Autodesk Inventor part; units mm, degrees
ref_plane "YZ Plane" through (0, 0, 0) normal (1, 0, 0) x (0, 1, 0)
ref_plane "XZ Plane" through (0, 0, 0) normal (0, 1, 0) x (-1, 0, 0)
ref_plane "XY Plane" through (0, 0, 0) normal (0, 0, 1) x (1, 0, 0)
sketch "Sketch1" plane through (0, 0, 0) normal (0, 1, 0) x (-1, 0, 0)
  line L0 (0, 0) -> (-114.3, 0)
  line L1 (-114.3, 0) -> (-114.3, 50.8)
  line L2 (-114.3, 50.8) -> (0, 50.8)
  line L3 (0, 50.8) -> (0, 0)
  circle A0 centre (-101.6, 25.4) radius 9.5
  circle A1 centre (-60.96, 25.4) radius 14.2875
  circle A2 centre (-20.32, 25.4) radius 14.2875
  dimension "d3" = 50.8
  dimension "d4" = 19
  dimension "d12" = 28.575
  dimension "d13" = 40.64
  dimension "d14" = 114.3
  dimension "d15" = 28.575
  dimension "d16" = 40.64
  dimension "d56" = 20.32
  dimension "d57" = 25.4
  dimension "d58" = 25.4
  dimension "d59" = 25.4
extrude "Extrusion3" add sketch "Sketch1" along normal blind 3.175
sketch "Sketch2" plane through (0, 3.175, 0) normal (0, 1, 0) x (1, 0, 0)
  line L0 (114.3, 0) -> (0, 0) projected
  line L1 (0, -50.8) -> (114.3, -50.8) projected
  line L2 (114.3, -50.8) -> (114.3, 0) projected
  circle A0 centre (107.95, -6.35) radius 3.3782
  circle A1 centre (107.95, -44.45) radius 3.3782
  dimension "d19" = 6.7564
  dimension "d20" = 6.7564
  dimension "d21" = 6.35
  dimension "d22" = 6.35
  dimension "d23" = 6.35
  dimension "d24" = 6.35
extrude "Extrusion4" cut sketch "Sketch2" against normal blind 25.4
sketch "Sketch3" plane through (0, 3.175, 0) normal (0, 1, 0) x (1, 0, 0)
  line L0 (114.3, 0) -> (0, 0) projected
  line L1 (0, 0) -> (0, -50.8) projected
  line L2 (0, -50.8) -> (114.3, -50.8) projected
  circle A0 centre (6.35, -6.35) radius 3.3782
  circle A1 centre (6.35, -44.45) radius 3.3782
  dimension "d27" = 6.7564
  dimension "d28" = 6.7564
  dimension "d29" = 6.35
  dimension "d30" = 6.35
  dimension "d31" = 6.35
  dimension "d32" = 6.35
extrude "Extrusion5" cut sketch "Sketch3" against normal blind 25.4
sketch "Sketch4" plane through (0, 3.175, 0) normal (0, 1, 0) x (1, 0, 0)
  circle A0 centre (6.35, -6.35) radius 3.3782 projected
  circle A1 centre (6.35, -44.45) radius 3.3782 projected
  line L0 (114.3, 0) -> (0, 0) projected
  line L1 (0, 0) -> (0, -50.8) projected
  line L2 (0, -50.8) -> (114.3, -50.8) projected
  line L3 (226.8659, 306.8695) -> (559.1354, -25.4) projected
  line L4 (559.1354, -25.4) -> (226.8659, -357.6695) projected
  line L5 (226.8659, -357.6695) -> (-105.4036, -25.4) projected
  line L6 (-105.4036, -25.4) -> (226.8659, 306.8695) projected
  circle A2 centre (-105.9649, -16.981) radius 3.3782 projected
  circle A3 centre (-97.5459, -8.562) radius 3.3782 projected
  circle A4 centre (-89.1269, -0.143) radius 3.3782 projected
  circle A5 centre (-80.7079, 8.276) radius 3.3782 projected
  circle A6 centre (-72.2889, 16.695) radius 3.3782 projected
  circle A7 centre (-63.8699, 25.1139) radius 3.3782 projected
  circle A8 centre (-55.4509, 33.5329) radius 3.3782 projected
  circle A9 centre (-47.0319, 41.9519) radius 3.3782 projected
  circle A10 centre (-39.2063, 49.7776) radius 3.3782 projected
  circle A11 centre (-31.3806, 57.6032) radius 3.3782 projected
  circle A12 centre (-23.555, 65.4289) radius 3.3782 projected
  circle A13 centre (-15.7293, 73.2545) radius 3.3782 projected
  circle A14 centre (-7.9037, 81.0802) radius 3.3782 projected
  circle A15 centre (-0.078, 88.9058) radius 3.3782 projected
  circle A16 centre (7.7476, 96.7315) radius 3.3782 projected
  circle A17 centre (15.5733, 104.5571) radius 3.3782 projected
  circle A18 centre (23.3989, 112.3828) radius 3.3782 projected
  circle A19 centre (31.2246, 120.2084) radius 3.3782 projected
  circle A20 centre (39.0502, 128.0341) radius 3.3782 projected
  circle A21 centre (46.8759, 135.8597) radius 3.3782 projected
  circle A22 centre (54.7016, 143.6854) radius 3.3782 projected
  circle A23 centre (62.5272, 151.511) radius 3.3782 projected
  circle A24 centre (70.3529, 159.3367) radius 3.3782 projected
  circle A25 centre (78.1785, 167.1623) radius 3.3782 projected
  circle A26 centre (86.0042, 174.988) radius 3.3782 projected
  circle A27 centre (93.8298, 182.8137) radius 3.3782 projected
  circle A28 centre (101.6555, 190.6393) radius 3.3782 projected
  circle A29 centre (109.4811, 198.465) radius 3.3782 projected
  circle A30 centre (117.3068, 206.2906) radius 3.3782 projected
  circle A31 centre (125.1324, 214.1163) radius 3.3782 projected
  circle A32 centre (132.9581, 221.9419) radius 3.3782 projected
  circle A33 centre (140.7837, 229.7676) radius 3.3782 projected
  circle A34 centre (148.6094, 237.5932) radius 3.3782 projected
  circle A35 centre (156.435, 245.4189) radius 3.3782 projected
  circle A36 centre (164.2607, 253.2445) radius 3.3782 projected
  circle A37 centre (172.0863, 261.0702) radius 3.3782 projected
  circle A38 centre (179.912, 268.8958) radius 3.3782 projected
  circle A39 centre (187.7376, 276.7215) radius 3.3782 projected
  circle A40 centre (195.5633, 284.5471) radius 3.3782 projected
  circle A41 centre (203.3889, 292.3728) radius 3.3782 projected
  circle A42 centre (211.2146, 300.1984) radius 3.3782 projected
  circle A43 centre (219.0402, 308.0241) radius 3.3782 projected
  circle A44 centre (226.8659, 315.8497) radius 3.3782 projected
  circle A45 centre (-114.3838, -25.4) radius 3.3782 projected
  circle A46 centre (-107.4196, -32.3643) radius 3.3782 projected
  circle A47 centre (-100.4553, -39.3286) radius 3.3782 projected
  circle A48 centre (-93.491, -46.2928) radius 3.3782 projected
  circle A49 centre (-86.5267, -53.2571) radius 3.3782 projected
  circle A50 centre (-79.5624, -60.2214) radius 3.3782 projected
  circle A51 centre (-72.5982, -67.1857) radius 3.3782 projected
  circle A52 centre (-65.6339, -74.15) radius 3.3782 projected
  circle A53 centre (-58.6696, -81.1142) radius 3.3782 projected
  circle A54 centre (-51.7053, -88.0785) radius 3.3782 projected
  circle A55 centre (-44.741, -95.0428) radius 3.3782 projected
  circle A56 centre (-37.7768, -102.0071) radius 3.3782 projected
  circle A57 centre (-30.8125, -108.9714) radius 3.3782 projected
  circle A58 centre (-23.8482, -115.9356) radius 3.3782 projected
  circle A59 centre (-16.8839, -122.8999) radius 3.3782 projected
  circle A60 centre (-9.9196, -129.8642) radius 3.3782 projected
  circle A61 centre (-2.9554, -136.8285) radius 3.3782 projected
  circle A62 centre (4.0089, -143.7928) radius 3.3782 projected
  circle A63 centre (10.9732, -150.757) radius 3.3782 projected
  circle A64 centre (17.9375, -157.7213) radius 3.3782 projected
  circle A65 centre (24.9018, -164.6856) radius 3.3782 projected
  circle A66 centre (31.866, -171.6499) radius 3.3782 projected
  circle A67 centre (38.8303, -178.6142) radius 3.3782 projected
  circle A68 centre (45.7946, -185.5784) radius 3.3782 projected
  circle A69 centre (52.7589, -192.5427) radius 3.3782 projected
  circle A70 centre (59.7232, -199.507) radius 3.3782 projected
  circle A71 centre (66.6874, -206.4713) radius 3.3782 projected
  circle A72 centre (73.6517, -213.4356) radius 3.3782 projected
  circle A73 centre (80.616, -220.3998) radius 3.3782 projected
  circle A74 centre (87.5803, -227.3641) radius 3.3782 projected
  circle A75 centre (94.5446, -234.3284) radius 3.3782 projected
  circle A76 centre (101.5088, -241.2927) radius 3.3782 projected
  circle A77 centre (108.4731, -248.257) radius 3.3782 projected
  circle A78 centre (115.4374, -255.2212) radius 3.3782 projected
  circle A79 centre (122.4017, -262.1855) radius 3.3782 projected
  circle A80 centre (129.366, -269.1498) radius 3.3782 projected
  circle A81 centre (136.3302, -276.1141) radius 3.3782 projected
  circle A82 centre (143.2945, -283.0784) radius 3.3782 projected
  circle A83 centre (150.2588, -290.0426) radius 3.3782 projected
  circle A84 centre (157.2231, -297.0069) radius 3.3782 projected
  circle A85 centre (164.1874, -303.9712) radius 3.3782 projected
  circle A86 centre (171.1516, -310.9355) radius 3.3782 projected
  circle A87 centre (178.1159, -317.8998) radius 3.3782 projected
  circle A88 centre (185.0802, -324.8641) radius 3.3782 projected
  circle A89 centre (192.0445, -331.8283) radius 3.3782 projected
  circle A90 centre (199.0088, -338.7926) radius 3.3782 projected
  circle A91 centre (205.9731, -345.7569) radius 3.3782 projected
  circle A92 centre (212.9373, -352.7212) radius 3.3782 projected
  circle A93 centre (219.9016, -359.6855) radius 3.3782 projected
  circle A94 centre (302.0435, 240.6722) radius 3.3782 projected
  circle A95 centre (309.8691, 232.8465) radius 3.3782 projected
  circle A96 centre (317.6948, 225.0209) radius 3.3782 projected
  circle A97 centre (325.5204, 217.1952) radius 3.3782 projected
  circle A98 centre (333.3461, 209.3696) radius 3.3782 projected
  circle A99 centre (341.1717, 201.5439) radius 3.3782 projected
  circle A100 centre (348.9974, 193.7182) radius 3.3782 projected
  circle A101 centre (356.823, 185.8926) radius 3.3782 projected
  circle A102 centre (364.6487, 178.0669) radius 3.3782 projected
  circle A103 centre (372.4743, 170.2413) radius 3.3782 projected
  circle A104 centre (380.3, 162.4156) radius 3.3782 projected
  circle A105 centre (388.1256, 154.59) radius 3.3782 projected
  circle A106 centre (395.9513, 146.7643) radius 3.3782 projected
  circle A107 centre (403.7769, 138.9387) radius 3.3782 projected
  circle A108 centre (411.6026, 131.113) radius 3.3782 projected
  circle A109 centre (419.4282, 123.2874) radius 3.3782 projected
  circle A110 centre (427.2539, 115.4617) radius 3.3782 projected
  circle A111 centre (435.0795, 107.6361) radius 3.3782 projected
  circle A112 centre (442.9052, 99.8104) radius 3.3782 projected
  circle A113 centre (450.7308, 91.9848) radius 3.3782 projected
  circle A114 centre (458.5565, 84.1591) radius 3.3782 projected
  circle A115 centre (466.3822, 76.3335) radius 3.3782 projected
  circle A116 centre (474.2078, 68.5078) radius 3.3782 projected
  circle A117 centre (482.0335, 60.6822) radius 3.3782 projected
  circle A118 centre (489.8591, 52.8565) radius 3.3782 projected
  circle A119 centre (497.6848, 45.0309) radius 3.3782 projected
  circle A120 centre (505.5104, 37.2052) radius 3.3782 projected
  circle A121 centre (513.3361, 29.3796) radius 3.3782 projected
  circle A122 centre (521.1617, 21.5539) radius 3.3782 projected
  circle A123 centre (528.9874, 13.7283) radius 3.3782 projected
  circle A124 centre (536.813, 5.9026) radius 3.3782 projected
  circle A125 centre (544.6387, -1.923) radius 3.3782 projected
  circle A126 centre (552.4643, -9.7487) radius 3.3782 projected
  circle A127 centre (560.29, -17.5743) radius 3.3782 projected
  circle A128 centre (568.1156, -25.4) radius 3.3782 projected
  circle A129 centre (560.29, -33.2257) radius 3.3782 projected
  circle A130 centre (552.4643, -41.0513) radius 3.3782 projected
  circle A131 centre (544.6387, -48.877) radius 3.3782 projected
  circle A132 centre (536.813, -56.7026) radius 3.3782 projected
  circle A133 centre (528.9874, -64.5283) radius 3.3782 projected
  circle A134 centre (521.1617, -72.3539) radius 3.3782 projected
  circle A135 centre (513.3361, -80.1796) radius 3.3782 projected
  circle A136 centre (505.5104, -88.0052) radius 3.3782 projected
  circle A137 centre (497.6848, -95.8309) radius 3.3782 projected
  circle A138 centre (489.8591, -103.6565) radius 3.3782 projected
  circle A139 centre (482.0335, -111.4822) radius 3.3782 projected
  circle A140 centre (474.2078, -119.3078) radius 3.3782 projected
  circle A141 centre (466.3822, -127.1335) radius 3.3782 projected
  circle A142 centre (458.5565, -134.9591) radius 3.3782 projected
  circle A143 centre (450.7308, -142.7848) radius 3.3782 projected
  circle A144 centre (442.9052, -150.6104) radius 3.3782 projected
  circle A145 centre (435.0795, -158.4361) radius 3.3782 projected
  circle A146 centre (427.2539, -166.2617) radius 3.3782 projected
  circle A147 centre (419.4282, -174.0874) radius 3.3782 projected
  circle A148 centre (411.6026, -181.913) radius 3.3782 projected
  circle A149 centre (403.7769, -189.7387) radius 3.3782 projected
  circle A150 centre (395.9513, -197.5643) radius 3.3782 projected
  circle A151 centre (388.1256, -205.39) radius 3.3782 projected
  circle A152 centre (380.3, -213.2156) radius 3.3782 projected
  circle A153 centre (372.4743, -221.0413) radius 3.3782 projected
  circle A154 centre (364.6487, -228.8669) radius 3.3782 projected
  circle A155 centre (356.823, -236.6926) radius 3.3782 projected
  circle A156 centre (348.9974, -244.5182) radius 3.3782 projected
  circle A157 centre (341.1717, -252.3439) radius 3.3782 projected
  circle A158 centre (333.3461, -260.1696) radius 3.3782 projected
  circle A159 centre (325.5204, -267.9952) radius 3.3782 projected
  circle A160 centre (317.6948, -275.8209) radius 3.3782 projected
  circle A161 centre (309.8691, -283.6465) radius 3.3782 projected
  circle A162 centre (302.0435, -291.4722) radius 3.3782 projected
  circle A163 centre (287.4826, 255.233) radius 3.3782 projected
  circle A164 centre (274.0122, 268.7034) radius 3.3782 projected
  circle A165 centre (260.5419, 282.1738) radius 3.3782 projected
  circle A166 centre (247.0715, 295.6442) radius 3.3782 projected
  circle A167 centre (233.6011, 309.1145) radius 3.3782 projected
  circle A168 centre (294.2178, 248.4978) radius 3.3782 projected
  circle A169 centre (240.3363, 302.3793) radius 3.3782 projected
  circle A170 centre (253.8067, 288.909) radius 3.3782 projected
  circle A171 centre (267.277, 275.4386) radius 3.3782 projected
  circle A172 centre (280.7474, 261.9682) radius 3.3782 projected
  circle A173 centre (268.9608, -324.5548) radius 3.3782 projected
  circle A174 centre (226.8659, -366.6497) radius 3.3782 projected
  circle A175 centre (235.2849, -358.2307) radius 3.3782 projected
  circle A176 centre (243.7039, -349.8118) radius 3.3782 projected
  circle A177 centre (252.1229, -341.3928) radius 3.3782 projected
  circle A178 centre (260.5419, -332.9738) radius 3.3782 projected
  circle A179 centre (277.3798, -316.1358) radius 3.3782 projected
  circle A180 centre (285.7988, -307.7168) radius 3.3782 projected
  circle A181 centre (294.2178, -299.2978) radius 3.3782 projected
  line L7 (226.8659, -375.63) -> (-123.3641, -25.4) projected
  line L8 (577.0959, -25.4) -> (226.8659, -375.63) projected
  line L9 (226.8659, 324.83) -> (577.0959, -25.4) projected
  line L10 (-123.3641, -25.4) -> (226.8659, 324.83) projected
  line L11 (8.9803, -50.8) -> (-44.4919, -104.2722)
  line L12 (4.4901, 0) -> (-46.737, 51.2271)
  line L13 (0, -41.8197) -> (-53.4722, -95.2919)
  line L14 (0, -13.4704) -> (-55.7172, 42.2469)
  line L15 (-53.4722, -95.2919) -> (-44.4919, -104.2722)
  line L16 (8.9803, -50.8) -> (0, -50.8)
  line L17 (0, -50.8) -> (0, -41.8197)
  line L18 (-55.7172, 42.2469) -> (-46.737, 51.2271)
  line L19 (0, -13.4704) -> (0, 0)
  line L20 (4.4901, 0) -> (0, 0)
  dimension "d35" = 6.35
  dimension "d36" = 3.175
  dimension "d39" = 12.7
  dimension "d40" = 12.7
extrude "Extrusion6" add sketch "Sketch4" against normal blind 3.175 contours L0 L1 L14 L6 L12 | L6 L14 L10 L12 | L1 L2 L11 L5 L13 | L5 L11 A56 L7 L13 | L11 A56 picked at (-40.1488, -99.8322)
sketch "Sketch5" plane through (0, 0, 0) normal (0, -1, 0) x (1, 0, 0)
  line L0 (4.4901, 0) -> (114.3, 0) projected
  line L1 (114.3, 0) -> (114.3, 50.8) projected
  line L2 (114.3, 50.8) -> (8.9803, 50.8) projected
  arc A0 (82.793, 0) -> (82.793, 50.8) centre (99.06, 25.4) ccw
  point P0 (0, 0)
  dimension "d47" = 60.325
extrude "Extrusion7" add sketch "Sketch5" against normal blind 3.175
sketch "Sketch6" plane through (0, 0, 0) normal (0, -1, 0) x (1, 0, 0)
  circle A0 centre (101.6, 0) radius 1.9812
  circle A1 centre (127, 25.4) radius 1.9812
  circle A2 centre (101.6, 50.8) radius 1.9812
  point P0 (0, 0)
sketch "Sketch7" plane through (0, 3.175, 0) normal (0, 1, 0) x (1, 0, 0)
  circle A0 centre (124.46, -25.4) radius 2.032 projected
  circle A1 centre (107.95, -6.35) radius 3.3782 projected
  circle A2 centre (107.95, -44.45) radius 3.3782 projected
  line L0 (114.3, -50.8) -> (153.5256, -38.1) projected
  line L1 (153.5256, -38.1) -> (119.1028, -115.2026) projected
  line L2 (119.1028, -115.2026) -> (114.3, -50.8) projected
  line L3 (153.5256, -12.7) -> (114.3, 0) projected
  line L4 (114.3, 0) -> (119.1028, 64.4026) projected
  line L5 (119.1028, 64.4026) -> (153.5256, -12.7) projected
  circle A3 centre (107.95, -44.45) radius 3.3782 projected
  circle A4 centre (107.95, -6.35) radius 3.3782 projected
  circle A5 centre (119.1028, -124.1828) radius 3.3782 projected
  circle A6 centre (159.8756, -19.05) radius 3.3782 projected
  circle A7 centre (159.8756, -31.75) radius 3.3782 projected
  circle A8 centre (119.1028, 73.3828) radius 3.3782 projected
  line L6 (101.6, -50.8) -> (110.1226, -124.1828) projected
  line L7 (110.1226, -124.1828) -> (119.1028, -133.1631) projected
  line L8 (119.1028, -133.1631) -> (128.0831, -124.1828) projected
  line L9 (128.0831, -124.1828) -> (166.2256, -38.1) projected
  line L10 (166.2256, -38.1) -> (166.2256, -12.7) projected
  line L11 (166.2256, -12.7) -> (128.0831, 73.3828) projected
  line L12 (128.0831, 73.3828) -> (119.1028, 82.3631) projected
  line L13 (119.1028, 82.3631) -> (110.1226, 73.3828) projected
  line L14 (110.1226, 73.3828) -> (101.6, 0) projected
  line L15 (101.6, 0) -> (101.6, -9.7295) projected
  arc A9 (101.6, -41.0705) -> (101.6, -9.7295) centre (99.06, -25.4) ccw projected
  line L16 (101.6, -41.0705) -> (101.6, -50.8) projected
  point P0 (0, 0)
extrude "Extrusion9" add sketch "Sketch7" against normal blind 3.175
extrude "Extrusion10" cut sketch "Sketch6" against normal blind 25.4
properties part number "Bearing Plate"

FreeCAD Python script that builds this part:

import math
import FreeCAD as App
import Part
import Sketcher
from FreeCAD import Vector
Q = App.Units.Quantity


def add_polygon(sketch, points):
    """Adds a closed chain of lines whose ends are joined by coincident constraints."""
    first, n = sketch.GeometryCount, len(points)
    for a, b in zip(points, points[1:] + points[:1]):
        sketch.addGeometry(Part.LineSegment(App.Vector(*a, 0), App.Vector(*b, 0)), False)
    for i in range(n):
        sketch.addConstraint(Sketcher.Constraint("Coincident", first + i, 2, first + (i + 1) % n, 1))

doc = App.newDocument("Part")
body = doc.addObject("PartDesign::Body", "Body")

# Sketch on XZ plane
sketch1 = body.newObject("Sketcher::SketchObject", "Sketch")
sketch1.AttachmentSupport = (doc.getObject("XZ_Plane"), [""])
sketch1.MapMode = "FlatFace"
add_polygon(sketch1, [(114.3, 0), (0, 0), (0, 50.8), (114.3, 50.8)])  # lines 0-3
sketch1.addGeometry(Part.Circle(Vector(101.6, 25.4, 0), Vector(0, 0, 1), 9.5), False)  # 4
sketch1.addGeometry(Part.Circle(Vector(60.96, 25.4, 0), Vector(0, 0, 1), 14.2875), False)  # 5
sketch1.addGeometry(Part.Circle(Vector(20.32, 25.4, 0), Vector(0, 0, 1), 14.2875), False)  # 6
sketch1.addConstraint(Sketcher.Constraint("Horizontal", 0))
sketch1.addConstraint(Sketcher.Constraint("Vertical", 1))
sketch1.addConstraint(Sketcher.Constraint("Horizontal", 2))
sketch1.addConstraint(Sketcher.Constraint("Vertical", 3))
sketch1.addConstraint(Sketcher.Constraint("Coincident", 0, 2, -1, 1))
sketch1.addConstraint(Sketcher.Constraint("Equal", 5, 6))
sketch1.addConstraint(Sketcher.Constraint("Horizontal", 4, 3, 5, 3))
sketch1.addConstraint(Sketcher.Constraint("Horizontal", 5, 3, 6, 3))
sketch1.addConstraint(Sketcher.Constraint("DistanceY", 1, 1, 1, 2, Q("2 in")))
sketch1.addConstraint(Sketcher.Constraint("Diameter", 5, Q("1.125 in")))
sketch1.addConstraint(Sketcher.Constraint("DistanceX", 0, 2, 0, 1, Q("4.5 in")))
sketch1.addConstraint(Sketcher.Constraint("DistanceY", -1, 1, 4, 3, Q("1 in")))
sketch1.addConstraint(Sketcher.Constraint("DistanceX", -1, 1, 6, 3, Q("0.8 in")))
sketch1.addConstraint(Sketcher.Constraint("DistanceX", 5, 3, 4, 3, Q("1.6 in")))
sketch1.addConstraint(Sketcher.Constraint("DistanceX", 6, 3, 5, 3, Q("1.6 in")))
sketch1.addConstraint(Sketcher.Constraint("Diameter", 4, Q("19 mm")))
pad1 = body.newObject("PartDesign::Pad", "Pad")
pad1.Profile = sketch1
pad1.Length = Q("0.125 in")
pad1.Reversed = True

# Sketch on XZ plane
sketch2 = body.newObject("Sketcher::SketchObject", "Sketch001")
sketch2.AttachmentSupport = (doc.getObject("XZ_Plane"), [""])
sketch2.MapMode = "FlatFace"
sketch2.AttachmentOffset = App.Placement(Vector(0, 0, -0.125 * 25.4), App.Rotation())
sketch2.addGeometry(Part.Circle(Vector(107.95, 6.35, 0), Vector(0, 0, 1), 3.3782), False)
sketch2.addGeometry(Part.Circle(Vector(107.95, 44.45, 0), Vector(0, 0, 1), 3.3782), False)
sketch2.addConstraint(Sketcher.Constraint("Equal", 0, 1))
sketch2.addConstraint(Sketcher.Constraint("Vertical", 0, 3, 1, 3))
sketch2.addConstraint(Sketcher.Constraint("Diameter", 0, Q("0.266 in")))
sketch2.addConstraint(Sketcher.Constraint("DistanceY", -1, 1, 0, 3, Q("0.25 in")))
sketch2.addConstraint(Sketcher.Constraint("DistanceY", 0, 3, 1, 3, Q("1.5 in")))
sketch2.addConstraint(Sketcher.Constraint("DistanceX", -1, 1, 0, 3, Q("4.25 in")))
pocket1 = body.newObject("PartDesign::Pocket", "Pocket")
pocket1.Profile = sketch2
pocket1.Length = Q("1 in")
pocket1.Reversed = True

# Sketch on XZ plane
sketch3 = body.newObject("Sketcher::SketchObject", "Sketch002")
sketch3.AttachmentSupport = (doc.getObject("XZ_Plane"), [""])
sketch3.MapMode = "FlatFace"
sketch3.AttachmentOffset = App.Placement(Vector(0, 0, -0.125 * 25.4), App.Rotation())
sketch3.addGeometry(Part.Circle(Vector(6.35, 6.35, 0), Vector(0, 0, 1), 3.3782), False)
sketch3.addGeometry(Part.Circle(Vector(6.35, 44.45, 0), Vector(0, 0, 1), 3.3782), False)
sketch3.addConstraint(Sketcher.Constraint("Equal", 0, 1))
sketch3.addConstraint(Sketcher.Constraint("Vertical", 0, 3, 1, 3))
sketch3.addConstraint(Sketcher.Constraint("Diameter", 0, Q("0.266 in")))
sketch3.addConstraint(Sketcher.Constraint("DistanceX", -1, 1, 0, 3, Q("0.25 in")))
sketch3.addConstraint(Sketcher.Constraint("DistanceY", -1, 1, 0, 3, Q("0.25 in")))
sketch3.addConstraint(Sketcher.Constraint("DistanceY", 0, 3, 1, 3, Q("1.5 in")))
pocket2 = body.newObject("PartDesign::Pocket", "Pocket001")
pocket2.Profile = sketch3
pocket2.Length = Q("1 in")
pocket2.Reversed = True

# Sketch on XZ plane
sketch4 = body.newObject("Sketcher::SketchObject", "Sketch003")
sketch4.AttachmentSupport = (doc.getObject("XZ_Plane"), [""])
sketch4.MapMode = "FlatFace"
sketch4.AttachmentOffset = App.Placement(Vector(0, 0, -0.125 * 25.4), App.Rotation())
add_polygon(sketch4, [(0, 0), (4.4901, 0), (-46.737, -51.2271), (-55.7172, -42.2469), (0, 13.4704)])  # lines 0-4
sketch4.addGeometry(Part.Circle(Vector(-47.0319, -41.9519, 0), Vector(0, 0, 1), 3.3782), False)  # 5
add_polygon(sketch4, [(0, 50.8), (0, 41.8197), (-53.4722, 95.2919), (-44.4919, 104.2722), (8.9803, 50.8)])  # lines 6-10
sketch4.addGeometry(Part.Circle(Vector(-44.741, 95.0428, 0), Vector(0, 0, 1), 3.3782), False)  # 11
sketch4.addConstraint(Sketcher.Constraint("Horizontal", 0))
sketch4.addConstraint(Sketcher.Constraint("Vertical", 4))
sketch4.addConstraint(Sketcher.Constraint("Vertical", 6))
sketch4.addConstraint(Sketcher.Constraint("Horizontal", 10))
sketch4.addConstraint(Sketcher.Constraint("Coincident", 4, 2, -1, 1))
sketch4.addConstraint(Sketcher.Constraint("Equal", 5, 11))
sketch4.addConstraint(Sketcher.Constraint("PointOnObject", 6, 2, -2))
sketch4.addConstraint(Sketcher.Constraint("Perpendicular", 1, 2))
sketch4.addConstraint(Sketcher.Constraint("Perpendicular", 2, 3))
sketch4.addConstraint(Sketcher.Constraint("Perpendicular", 3, 7))
sketch4.addConstraint(Sketcher.Constraint("Perpendicular", 7, 8))
sketch4.addConstraint(Sketcher.Constraint("Perpendicular", 8, 9))
sketch4.addConstraint(Sketcher.Constraint("Equal", 10, 6))
sketch4.addConstraint(Sketcher.Constraint("Equal", 2, 8))
sketch4.addConstraint(Sketcher.Constraint("Equal", 7, 9))
sketch4.addConstraint(Sketcher.Constraint("Distance", 2, Q("0.5 in")))
sketch4.addConstraint(Sketcher.Constraint("Diameter", 5, Q("0.266 in")))
sketch4.addConstraint(Sketcher.Constraint("DistanceY", -1, 1, 9, 2, Q("2 in")))
sketch4.addConstraint(Sketcher.Constraint("DistanceX", 7, 2, 11, 3, Q("0.343748 in")))
sketch4.addConstraint(Sketcher.Constraint("DistanceX", 11, 3, 9, 2, Q("2.115 in")))
sketch4.addConstraint(Sketcher.Constraint("Distance", 1, Q("2.8522 in")))
sketch4.addConstraint(Sketcher.Constraint("Distance", 3, Q("3.1022 in")))
sketch4.addConstraint(Sketcher.Constraint("DistanceX", 5, 3, 11, 3, Q("0.0902 in")))
sketch4.addConstraint(Sketcher.Constraint("DistanceY", 5, 3, 11, 3, Q("5.3935 in")))
sketch4.addConstraint(Sketcher.Constraint("DistanceY", 2, 2, 11, 3, Q("5.4051 in")))
pad2 = body.newObject("PartDesign::Pad", "Pad001")
pad2.Profile = sketch4
pad2.Length = Q("0.125 in")

# Sketch on XZ plane
sketch5 = body.newObject("Sketcher::SketchObject", "Sketch004")
sketch5.AttachmentSupport = (doc.getObject("XZ_Plane"), [""])
sketch5.MapMode = "FlatFace"
sketch5.addGeometry(Part.LineSegment(Vector(114.3, 0, 0), Vector(82.793, 0, 0)), False)
sketch5.addGeometry(Part.ArcOfCircle(Part.Circle(Vector(99.06, 25.4, 0), Vector(0, 0, 1), 30.162481), math.radians(-122.636843), math.radians(122.636843)), False)
sketch5.addGeometry(Part.LineSegment(Vector(82.793, 50.8, 0), Vector(114.3, 50.8, 0)), False)
sketch5.addGeometry(Part.LineSegment(Vector(114.3, 50.8, 0), Vector(114.3, 0, 0)), False)
sketch5.addConstraint(Sketcher.Constraint("Coincident", 0, 2, 1, 1))
sketch5.addConstraint(Sketcher.Constraint("Coincident", 1, 2, 2, 1))
sketch5.addConstraint(Sketcher.Constraint("Coincident", 2, 2, 3, 1))
sketch5.addConstraint(Sketcher.Constraint("Coincident", 3, 2, 0, 1))
sketch5.addConstraint(Sketcher.Constraint("Horizontal", 0))
sketch5.addConstraint(Sketcher.Constraint("Horizontal", 2))
sketch5.addConstraint(Sketcher.Constraint("Vertical", 3))
sketch5.addConstraint(Sketcher.Constraint("PointOnObject", 0, 2, -1))
sketch5.addConstraint(Sketcher.Constraint("Vertical", 0, 2, 1, 2))
sketch5.addConstraint(Sketcher.Constraint("Radius", 1, Q("1.1875 in")))
sketch5.addConstraint(Sketcher.Constraint("DistanceY", 3, 2, 3, 1, Q("2 in")))
sketch5.addConstraint(Sketcher.Constraint("DistanceX", -1, 1, 1, 3, Q("3.9 in")))
sketch5.addConstraint(Sketcher.Constraint("DistanceX", -1, 1, 2, 2, Q("4.5 in")))
pad3 = body.newObject("PartDesign::Pad", "Pad002")
pad3.Profile = sketch5
pad3.Length = Q("0.125 in")
pad3.Reversed = True

# Sketch on XZ plane
sketch6 = body.newObject("Sketcher::SketchObject", "Sketch005")
sketch6.AttachmentSupport = (doc.getObject("XZ_Plane"), [""])
sketch6.MapMode = "FlatFace"
sketch6.AttachmentOffset = App.Placement(Vector(0, 0, -0.125 * 25.4), App.Rotation())
sketch6.addGeometry(Part.LineSegment(Vector(101.6, 41.0705, 0), Vector(101.6, 50.8, 0)), False)  # 0
sketch6.addGeometry(Part.LineSegment(Vector(101.6, 50.8, 0), Vector(110.1226, 124.1828, 0)), False)  # 1
sketch6.addGeometry(Part.LineSegment(Vector(110.1226, 124.1828, 0), Vector(119.1028, 133.1631, 0)), False)  # 2
sketch6.addGeometry(Part.LineSegment(Vector(119.1028, 133.1631, 0), Vector(128.0831, 124.1828, 0)), False)  # 3
sketch6.addGeometry(Part.LineSegment(Vector(128.0831, 124.1828, 0), Vector(166.2256, 38.1, 0)), False)  # 4
sketch6.addGeometry(Part.LineSegment(Vector(166.2256, 38.1, 0), Vector(166.2256, 12.7, 0)), False)  # 5
sketch6.addGeometry(Part.LineSegment(Vector(166.2256, 12.7, 0), Vector(128.0831, -73.3828, 0)), False)  # 6
sketch6.addGeometry(Part.LineSegment(Vector(128.0831, -73.3828, 0), Vector(119.1028, -82.3631, 0)), False)  # 7
sketch6.addGeometry(Part.LineSegment(Vector(119.1028, -82.3631, 0), Vector(110.1226, -73.3828, 0)), False)  # 8
sketch6.addGeometry(Part.LineSegment(Vector(110.1226, -73.3828, 0), Vector(101.6, 0, 0)), False)  # 9
sketch6.addGeometry(Part.LineSegment(Vector(101.6, 0, 0), Vector(101.6, 9.7295, 0)), False)  # 10
sketch6.addGeometry(Part.ArcOfCircle(Part.Circle(Vector(99.06, 25.4, 0), Vector(0, 0, 1), 15.875017), math.radians(-80.793114), math.radians(80.793114)), False)  # 11
sketch6.addGeometry(Part.Circle(Vector(119.1028, 124.1828, 0), Vector(0, 0, 1), 3.3782), False)  # 12
sketch6.addGeometry(Part.Circle(Vector(107.95, 44.45, 0), Vector(0, 0, 1), 3.3782), False)  # 13
sketch6.addGeometry(Part.Circle(Vector(124.46, 25.4, 0), Vector(0, 0, 1), 2.032), False)  # 14
add_polygon(sketch6, [(119.1028, 115.2026), (114.3, 50.8), (153.5256, 38.1)])  # lines 15-17
sketch6.addGeometry(Part.Circle(Vector(159.8756, 31.75, 0), Vector(0, 0, 1), 3.3782), False)  # 18
sketch6.addGeometry(Part.Circle(Vector(107.95, 6.35, 0), Vector(0, 0, 1), 3.3782), False)  # 19
sketch6.addGeometry(Part.Circle(Vector(119.1028, -73.3828, 0), Vector(0, 0, 1), 3.3782), False)  # 20
add_polygon(sketch6, [(119.1028, -64.4026), (153.5256, 12.7), (114.3, 0)])  # lines 21-23
sketch6.addGeometry(Part.Circle(Vector(159.8756, 19.05, 0), Vector(0, 0, 1), 3.3782), False)  # 24
sketch6.addConstraint(Sketcher.Constraint("Coincident", 0, 2, 1, 1))
sketch6.addConstraint(Sketcher.Constraint("Coincident", 1, 2, 2, 1))
sketch6.addConstraint(Sketcher.Constraint("Coincident", 2, 2, 3, 1))
sketch6.addConstraint(Sketcher.Constraint("Coincident", 3, 2, 4, 1))
sketch6.addConstraint(Sketcher.Constraint("Coincident", 4, 2, 5, 1))
sketch6.addConstraint(Sketcher.Constraint("Coincident", 5, 2, 6, 1))
sketch6.addConstraint(Sketcher.Constraint("Coincident", 6, 2, 7, 1))
sketch6.addConstraint(Sketcher.Constraint("Coincident", 7, 2, 8, 1))
sketch6.addConstraint(Sketcher.Constraint("Coincident", 8, 2, 9, 1))
sketch6.addConstraint(Sketcher.Constraint("Coincident", 9, 2, 10, 1))
sketch6.addConstraint(Sketcher.Constraint("Coincident", 10, 2, 11, 1))
sketch6.addConstraint(Sketcher.Constraint("Coincident", 11, 2, 0, 1))
sketch6.addConstraint(Sketcher.Constraint("Vertical", 0))
sketch6.addConstraint(Sketcher.Constraint("Vertical", 5))
sketch6.addConstraint(Sketcher.Constraint("Vertical", 10))
sketch6.addConstraint(Sketcher.Constraint("Equal", 12, 13))
sketch6.addConstraint(Sketcher.Constraint("Equal", 13, 18))
sketch6.addConstraint(Sketcher.Constraint("Equal", 18, 19))
sketch6.addConstraint(Sketcher.Constraint("Equal", 19, 20))
sketch6.addConstraint(Sketcher.Constraint("Equal", 20, 24))
sketch6.addConstraint(Sketcher.Constraint("PointOnObject", 9, 2, -1))
sketch6.addConstraint(Sketcher.Constraint("PointOnObject", 22, 2, -1))
sketch6.addConstraint(Sketcher.Constraint("Perpendicular", 2, 3))
sketch6.addConstraint(Sketcher.Constraint("Perpendicular", 3, 7))
sketch6.addConstraint(Sketcher.Constraint("Perpendicular", 7, 8))
sketch6.addConstraint(Sketcher.Constraint("Horizontal", 11, 3, 14, 3))
sketch6.addConstraint(Sketcher.Constraint("Horizontal", 12, 3, 1, 2))
sketch6.addConstraint(Sketcher.Constraint("Horizontal", 1, 2, 3, 2))
sketch6.addConstraint(Sketcher.Constraint("Horizontal", 20, 3, 6, 2))
sketch6.addConstraint(Sketcher.Constraint("Horizontal", 6, 2, 8, 2))
sketch6.addConstraint(Sketcher.Constraint("Horizontal", 0, 2, 15, 2))
sketch6.addConstraint(Sketcher.Constraint("Horizontal", 4, 2, 16, 2))
sketch6.addConstraint(Sketcher.Constraint("Horizontal", 5, 2, 21, 2))
sketch6.addConstraint(Sketcher.Constraint("Vertical", 13, 3, 19, 3))
sketch6.addConstraint(Sketcher.Constraint("Vertical", 12, 3, 20, 3))
sketch6.addConstraint(Sketcher.Constraint("Vertical", 18, 3, 24, 3))
sketch6.addConstraint(Sketcher.Constraint("Vertical", 20, 3, 2, 2))
sketch6.addConstraint(Sketcher.Constraint("Vertical", 3, 2, 6, 2))
sketch6.addConstraint(Sketcher.Constraint("Vertical", 2, 2, 7, 2))
sketch6.addConstraint(Sketcher.Constraint("Vertical", 1, 2, 8, 2))
sketch6.addConstraint(Sketcher.Constraint("Vertical", 0, 2, 9, 2))
sketch6.addConstraint(Sketcher.Constraint("Vertical", 7, 2, 17, 2))
sketch6.addConstraint(Sketcher.Constraint("Vertical", 16, 2, 21, 2))
sketch6.addConstraint(Sketcher.Constraint("Vertical", 15, 2, 22, 2))
sketch6.addConstraint(Sketcher.Constraint("Vertical", 17, 2, 23, 2))
sketch6.addConstraint(Sketcher.Constraint("Equal", 0, 10))
sketch6.addConstraint(Sketcher.Constraint("Equal", 4, 6))
sketch6.addConstraint(Sketcher.Constraint("Equal", 1, 9))
sketch6.addConstraint(Sketcher.Constraint("Equal", 17, 21))
sketch6.addConstraint(Sketcher.Constraint("Diameter", 14, Q("0.16 in")))
sketch6.addConstraint(Sketcher.Constraint("DistanceY", 5, 2, 5, 1, Q("1 in")))
sketch6.addConstraint(Sketcher.Constraint("Diameter", 12, Q("0.266 in")))
sketch6.addConstraint(Sketcher.Constraint("DistanceY", -1, 1, 11, 3, Q("1 in")))
sketch6.addConstraint(Sketcher.Constraint("DistanceX", -1, 1, 0, 2, Q("4 in")))
sketch6.addConstraint(Sketcher.Constraint("Radius", 11, Q("0.625 in")))
sketch6.addConstraint(Sketcher.Constraint("DistanceX", 11, 3, 14, 3, Q("1 in")))
sketch6.addConstraint(Sketcher.Constraint("DistanceY", 19, 3, 18, 3, Q("1 in")))
sketch6.addConstraint(Sketcher.Constraint("DistanceY", 24, 3, 13, 3, Q("1 in")))
sketch6.addConstraint(Sketcher.Constraint("Distance", 2, Q("0.5 in")))
sketch6.addConstraint(Sketcher.Constraint("DistanceX", -1, 1, 11, 3, Q("3.9 in")))
sketch6.addConstraint(Sketcher.Constraint("DistanceX", -1, 1, 15, 2, Q("4.5 in")))
sketch6.addConstraint(Sketcher.Constraint("DistanceY", 18, 3, 13, 3, Q("0.5 in")))
sketch6.addConstraint(Sketcher.Constraint("DistanceX", 16, 2, 4, 2, Q("0.5 in")))
sketch6.addConstraint(Sketcher.Constraint("DistanceX", -1, 1, 13, 3, Q("4.25 in")))
sketch6.addConstraint(Sketcher.Constraint("DistanceY", -1, 1, 13, 3, Q("1.75 in")))
sketch6.addConstraint(Sketcher.Constraint("Angle", 16, Q("-17.9403 deg")))
sketch6.addConstraint(Sketcher.Constraint("DistanceX", 18, 3, 4, 2, Q("0.25 in")))
sketch6.addConstraint(Sketcher.Constraint("Distance", 1, Q("2.9085 in")))
sketch6.addConstraint(Sketcher.Constraint("DistanceY", 17, 2, 2, 2, Q("0.7071 in")))
sketch6.addConstraint(Sketcher.Constraint("Distance", 4, Q("94.1547 mm")))
pad4 = body.newObject("PartDesign::Pad", "Pad003")
pad4.Profile = sketch6
pad4.Length = Q("0.125 in")

# Sketch on XZ plane
sketch7 = body.newObject("Sketcher::SketchObject", "Sketch006")
sketch7.AttachmentSupport = (doc.getObject("XZ_Plane"), [""])
sketch7.MapMode = "FlatFace"
sketch7.addGeometry(Part.Circle(Vector(101.6, 0, 0), Vector(0, 0, 1), 1.9812), False)
sketch7.addGeometry(Part.Circle(Vector(127, 25.4, 0), Vector(0, 0, 1), 1.9812), False)
sketch7.addGeometry(Part.Circle(Vector(101.6, 50.8, 0), Vector(0, 0, 1), 1.9812), False)
sketch7.addConstraint(Sketcher.Constraint("Equal", 0, 1))
sketch7.addConstraint(Sketcher.Constraint("Equal", 1, 2))
sketch7.addConstraint(Sketcher.Constraint("PointOnObject", 0, 3, -1))
sketch7.addConstraint(Sketcher.Constraint("Vertical", 0, 3, 2, 3))
sketch7.addConstraint(Sketcher.Constraint("Diameter", 0, Q("0.156 in")))
sketch7.addConstraint(Sketcher.Constraint("DistanceX", -1, 1, 0, 3, Q("4 in")))
sketch7.addConstraint(Sketcher.Constraint("DistanceX", -1, 1, 1, 3, Q("5 in")))
sketch7.addConstraint(Sketcher.Constraint("DistanceY", -1, 1, 1, 3, Q("1 in")))
sketch7.addConstraint(Sketcher.Constraint("DistanceY", -1, 1, 2, 3, Q("2 in")))
pocket3 = body.newObject("PartDesign::Pocket", "Pocket002")
pocket3.Profile = sketch7
pocket3.Length = Q("1 in")

doc.recompute()
